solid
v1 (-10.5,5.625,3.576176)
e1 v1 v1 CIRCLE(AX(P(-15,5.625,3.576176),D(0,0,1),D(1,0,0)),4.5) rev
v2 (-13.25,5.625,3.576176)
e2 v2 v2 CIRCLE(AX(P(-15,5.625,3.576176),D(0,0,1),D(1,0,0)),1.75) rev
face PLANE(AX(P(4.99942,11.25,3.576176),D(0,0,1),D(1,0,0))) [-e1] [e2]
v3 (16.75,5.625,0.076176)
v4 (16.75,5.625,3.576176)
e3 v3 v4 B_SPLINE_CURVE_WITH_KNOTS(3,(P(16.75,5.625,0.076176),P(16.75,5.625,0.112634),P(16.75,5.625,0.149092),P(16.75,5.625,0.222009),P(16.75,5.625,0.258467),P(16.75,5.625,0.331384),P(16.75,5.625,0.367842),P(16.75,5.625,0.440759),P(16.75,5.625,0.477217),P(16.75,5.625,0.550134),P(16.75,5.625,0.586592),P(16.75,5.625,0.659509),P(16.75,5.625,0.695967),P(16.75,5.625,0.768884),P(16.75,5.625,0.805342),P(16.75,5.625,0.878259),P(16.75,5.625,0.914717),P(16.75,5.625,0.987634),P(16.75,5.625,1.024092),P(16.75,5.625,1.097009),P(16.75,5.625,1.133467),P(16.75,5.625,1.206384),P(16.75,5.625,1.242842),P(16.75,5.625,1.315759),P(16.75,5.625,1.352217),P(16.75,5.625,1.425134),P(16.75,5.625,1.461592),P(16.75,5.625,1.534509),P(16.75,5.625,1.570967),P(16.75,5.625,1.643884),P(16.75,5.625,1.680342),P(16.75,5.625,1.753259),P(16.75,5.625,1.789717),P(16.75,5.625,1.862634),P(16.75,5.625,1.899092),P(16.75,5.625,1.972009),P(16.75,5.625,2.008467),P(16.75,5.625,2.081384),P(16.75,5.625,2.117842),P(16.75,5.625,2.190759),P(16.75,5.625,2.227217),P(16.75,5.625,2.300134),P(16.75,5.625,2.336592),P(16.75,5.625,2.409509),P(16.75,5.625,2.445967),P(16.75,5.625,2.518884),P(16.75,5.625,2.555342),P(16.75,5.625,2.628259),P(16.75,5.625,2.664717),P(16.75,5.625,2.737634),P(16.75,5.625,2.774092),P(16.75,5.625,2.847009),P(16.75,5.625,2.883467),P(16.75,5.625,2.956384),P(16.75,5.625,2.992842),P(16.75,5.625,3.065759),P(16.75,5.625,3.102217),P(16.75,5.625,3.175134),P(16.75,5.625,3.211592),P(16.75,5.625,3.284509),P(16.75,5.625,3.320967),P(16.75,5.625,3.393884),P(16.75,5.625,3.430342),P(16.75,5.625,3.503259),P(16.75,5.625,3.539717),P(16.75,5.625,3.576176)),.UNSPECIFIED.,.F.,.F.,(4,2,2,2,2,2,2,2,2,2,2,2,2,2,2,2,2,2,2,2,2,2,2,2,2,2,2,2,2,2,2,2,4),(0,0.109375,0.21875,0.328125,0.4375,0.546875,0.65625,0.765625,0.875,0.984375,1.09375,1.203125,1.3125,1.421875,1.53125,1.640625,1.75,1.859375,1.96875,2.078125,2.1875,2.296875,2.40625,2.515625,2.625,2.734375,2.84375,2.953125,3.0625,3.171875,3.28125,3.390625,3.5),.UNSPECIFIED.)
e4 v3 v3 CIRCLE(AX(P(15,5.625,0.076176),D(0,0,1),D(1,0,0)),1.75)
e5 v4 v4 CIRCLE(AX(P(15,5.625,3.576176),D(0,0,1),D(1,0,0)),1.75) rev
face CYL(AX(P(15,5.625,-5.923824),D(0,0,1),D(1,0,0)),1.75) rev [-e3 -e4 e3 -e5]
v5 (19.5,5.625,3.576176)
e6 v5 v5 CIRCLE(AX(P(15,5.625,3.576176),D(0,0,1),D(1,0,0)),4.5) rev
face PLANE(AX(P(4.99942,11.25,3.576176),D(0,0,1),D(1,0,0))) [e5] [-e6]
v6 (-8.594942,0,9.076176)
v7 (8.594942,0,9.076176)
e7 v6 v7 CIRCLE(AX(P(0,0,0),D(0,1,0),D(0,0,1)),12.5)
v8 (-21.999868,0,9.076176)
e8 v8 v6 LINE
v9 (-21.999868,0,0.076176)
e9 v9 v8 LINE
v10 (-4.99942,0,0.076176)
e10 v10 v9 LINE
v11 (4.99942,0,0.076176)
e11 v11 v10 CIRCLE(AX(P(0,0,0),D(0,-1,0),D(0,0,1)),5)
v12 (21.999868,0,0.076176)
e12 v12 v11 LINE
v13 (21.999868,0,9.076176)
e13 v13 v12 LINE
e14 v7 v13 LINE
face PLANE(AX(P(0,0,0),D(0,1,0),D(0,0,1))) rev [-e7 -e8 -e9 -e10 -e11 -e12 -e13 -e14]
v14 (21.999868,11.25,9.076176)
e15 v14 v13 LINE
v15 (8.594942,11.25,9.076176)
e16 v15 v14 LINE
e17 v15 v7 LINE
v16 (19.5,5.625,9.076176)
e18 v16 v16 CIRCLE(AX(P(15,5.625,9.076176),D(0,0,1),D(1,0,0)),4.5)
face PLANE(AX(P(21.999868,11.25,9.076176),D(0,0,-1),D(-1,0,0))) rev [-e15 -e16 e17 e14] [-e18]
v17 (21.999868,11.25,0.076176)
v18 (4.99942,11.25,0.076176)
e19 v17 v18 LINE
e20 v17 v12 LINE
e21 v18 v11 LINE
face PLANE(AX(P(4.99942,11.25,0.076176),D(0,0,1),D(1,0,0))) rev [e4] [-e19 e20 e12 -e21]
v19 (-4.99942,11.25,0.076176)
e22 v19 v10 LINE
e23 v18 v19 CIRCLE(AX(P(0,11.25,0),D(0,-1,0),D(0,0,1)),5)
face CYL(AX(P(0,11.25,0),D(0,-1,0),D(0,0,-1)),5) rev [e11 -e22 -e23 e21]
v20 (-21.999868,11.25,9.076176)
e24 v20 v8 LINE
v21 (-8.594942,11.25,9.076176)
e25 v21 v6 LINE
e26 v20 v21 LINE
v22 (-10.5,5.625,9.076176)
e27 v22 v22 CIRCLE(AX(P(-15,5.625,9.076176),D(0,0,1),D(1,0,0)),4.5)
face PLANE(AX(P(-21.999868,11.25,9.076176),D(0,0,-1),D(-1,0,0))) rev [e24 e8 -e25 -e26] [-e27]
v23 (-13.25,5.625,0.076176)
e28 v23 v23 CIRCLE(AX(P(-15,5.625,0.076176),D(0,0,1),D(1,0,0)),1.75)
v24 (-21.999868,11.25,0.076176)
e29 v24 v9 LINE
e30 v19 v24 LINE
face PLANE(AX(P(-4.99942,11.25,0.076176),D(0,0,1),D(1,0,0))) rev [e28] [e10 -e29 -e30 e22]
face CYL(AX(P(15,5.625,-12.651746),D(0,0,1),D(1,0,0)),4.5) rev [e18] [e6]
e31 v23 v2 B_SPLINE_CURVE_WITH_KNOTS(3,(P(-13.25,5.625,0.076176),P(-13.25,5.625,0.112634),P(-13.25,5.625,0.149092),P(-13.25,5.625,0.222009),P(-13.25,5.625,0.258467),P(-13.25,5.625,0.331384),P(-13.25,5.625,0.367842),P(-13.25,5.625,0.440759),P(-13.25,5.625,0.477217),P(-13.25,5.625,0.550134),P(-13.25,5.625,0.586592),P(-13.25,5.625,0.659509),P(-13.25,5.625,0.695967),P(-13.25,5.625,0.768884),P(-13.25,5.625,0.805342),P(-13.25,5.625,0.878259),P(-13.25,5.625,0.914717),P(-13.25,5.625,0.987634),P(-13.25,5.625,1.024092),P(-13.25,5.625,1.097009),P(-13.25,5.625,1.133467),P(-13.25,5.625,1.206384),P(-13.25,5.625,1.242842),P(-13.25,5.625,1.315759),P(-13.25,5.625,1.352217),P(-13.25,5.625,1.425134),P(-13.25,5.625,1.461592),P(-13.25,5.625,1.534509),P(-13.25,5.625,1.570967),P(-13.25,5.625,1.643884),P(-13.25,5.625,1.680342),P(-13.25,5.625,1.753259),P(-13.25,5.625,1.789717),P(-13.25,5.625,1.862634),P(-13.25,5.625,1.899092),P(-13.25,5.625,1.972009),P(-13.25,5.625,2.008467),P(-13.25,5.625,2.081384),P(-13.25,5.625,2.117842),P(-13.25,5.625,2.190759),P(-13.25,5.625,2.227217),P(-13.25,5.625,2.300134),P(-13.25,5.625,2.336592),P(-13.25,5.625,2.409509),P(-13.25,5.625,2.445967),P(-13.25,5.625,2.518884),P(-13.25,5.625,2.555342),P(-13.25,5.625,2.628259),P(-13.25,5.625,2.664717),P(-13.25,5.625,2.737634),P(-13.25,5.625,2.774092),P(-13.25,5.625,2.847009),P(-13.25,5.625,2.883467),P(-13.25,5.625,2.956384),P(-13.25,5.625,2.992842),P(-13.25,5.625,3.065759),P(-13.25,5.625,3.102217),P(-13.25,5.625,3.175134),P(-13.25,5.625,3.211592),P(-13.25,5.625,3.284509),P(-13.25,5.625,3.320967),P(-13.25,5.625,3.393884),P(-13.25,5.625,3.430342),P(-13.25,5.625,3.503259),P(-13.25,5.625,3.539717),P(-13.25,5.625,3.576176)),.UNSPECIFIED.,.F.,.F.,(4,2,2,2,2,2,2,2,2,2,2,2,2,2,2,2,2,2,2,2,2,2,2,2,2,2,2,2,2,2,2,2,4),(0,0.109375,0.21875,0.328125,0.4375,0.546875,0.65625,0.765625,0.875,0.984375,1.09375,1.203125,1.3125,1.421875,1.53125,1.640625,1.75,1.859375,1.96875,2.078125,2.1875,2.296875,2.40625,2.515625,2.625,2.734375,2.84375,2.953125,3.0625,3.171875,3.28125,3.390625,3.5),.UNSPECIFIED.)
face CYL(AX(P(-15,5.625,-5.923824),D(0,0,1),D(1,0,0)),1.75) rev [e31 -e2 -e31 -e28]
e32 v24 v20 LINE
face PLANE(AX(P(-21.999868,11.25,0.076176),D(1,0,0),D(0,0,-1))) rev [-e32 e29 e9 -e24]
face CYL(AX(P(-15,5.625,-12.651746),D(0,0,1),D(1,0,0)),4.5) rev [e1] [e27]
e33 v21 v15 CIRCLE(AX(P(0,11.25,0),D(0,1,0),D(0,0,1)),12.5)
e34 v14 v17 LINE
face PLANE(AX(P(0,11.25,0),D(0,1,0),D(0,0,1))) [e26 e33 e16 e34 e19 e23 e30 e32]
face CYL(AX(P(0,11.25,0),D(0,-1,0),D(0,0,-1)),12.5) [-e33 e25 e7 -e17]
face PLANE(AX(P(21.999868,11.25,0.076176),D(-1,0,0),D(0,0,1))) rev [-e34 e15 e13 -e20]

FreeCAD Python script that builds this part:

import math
import FreeCAD as App
import Part
import Sketcher
Q = App.Units.Quantity

doc = App.newDocument("Part")
params = doc.addObject("Spreadsheet::Sheet", "Params")
for row, (alias, value) in enumerate([
    ("sketch1_radius", "5 mm"),
    ("sketch1_radius2", "12.5 mm"),
    ("sketch1_height", "9 mm"),
    ("pad1_length", "11.25 mm"),
    ("sketch2_diameter", "3.5 mm"),
    ("pocket1_length", "15 mm"),
    ("sketch3_diameter", "9 mm"),
    ("pocket2_length", "5.5 mm"),
], start=1):
    params.set(f"A{row}", alias)
    params.set(f"B{row}", "=" + value)
    params.setAlias(f"B{row}", alias)

body = doc.addObject("PartDesign::Body", "Body")

# Sketch on XZ plane
sketch1 = body.newObject("Sketcher::SketchObject", "Sketch")
sketch1.AttachmentSupport = (doc.getObject("XZ_Plane"), [""])
sketch1.MapMode = "FlatFace"
sketch1.addGeometry([
    Part.LineSegment(App.Vector(22, 0, 0), App.Vector(5, 0, 0)),  # 0
    Part.ArcOfCircle(Part.Circle(App.Vector(0, 0, 0), App.Vector(0, 0, 1), 5), math.radians(1), math.radians(179)),  # 1
    Part.LineSegment(App.Vector(-5, 0, 0), App.Vector(-22, 0, 0)),  # 2
    Part.LineSegment(App.Vector(-22, 0, 0), App.Vector(-22, 9, 0)),  # 3
    Part.LineSegment(App.Vector(-22, 9, 0), App.Vector(-9, 9, 0)),  # 4
    Part.ArcOfCircle(Part.Circle(App.Vector(0, 0, 0), App.Vector(0, 0, 1), 12), math.radians(47), math.radians(133)),  # 5
    Part.LineSegment(App.Vector(9, 9, 0), App.Vector(22, 9, 0)),  # 6
    Part.LineSegment(App.Vector(22, 9, 0), App.Vector(22, 0, 0)),  # 7
], False)
sketch1.addConstraint([
    Sketcher.Constraint("Coincident", 0, 2, 1, 1),
    Sketcher.Constraint("Coincident", 1, 2, 2, 1),
    Sketcher.Constraint("Coincident", 2, 2, 3, 1),
    Sketcher.Constraint("Coincident", 3, 2, 4, 1),
    Sketcher.Constraint("Coincident", 4, 2, 5, 2),
    Sketcher.Constraint("Coincident", 5, 1, 6, 1),
    Sketcher.Constraint("Coincident", 6, 2, 7, 1),
    Sketcher.Constraint("Coincident", 7, 2, 0, 1),
    Sketcher.Constraint("Horizontal", 0),
    Sketcher.Constraint("Horizontal", 2),
    Sketcher.Constraint("Vertical", 3),
    Sketcher.Constraint("Horizontal", 4),
    Sketcher.Constraint("Horizontal", 6),
    Sketcher.Constraint("Vertical", 7),
    Sketcher.Constraint("Coincident", 1, 3, -1, 1),
    Sketcher.Constraint("Coincident", 5, 3, -1, 1),
    Sketcher.Constraint("Symmetric", 3, 2, 6, 2, -2),
    Sketcher.Constraint("Horizontal", 0, 2, 1, 2),
    Sketcher.Constraint("Radius", 1, Q("5 mm")),
    Sketcher.Constraint("Radius", 5, Q("12.5 mm")),
    Sketcher.Constraint("DistanceY", 3, 1, 3, 2, Q("9 mm")),
    Sketcher.Constraint("DistanceX", 0, 2, 0, 1, Q("17.000448 mm")),
    Sketcher.Constraint("DistanceX", 4, 1, 4, 2, Q("13.404926 mm")),
])
sketch1.setExpression("Constraints[18]", "Params.sketch1_radius")
sketch1.setExpression("Constraints[19]", "Params.sketch1_radius2")
sketch1.setExpression("Constraints[20]", "Params.sketch1_height")
pad1 = body.newObject("PartDesign::Pad", "Pad")
pad1.Profile = sketch1
pad1.setExpression("Length", "Params.pad1_length")
pad1.Reversed = True

# Sketch on XY plane
sketch2 = body.newObject("Sketcher::SketchObject", "Sketch001")
sketch2.AttachmentSupport = (doc.getObject("XY_Plane"), [""])
sketch2.MapMode = "FlatFace"
sketch2.AttachmentOffset = App.Placement(App.Vector(0, 0, 9.076176), App.Rotation())
sketch2.addGeometry([
    Part.Circle(App.Vector(15, 5.6, 0), App.Vector(0, 0, 1), 1.8),
    Part.Circle(App.Vector(-15, 5.6, 0), App.Vector(0, 0, 1), 1.8),
], False)
sketch2.addConstraint([
    Sketcher.Constraint("Equal", 0, 1),
    Sketcher.Constraint("Symmetric", 0, 3, 1, 3, -2),
    Sketcher.Constraint("Diameter", 0, Q("3.5 mm")),
    Sketcher.Constraint("DistanceX", -1, 1, 0, 3, Q("15 mm")),
    Sketcher.Constraint("DistanceY", -1, 1, 0, 3, Q("5.625 mm")),
])
sketch2.setExpression("Constraints[2]", "Params.sketch2_diameter")
pocket1 = body.newObject("PartDesign::Pocket", "Pocket")
pocket1.Profile = sketch2
pocket1.setExpression("Length", "Params.pocket1_length")

# Sketch on XY plane
sketch3 = body.newObject("Sketcher::SketchObject", "Sketch002")
sketch3.AttachmentSupport = (doc.getObject("XY_Plane"), [""])
sketch3.MapMode = "FlatFace"
sketch3.AttachmentOffset = App.Placement(App.Vector(0, 0, 9.076176), App.Rotation())
sketch3.addGeometry([
    Part.Circle(App.Vector(15, 5.6, 0), App.Vector(0, 0, 1), 4.5),
    Part.Circle(App.Vector(-15, 5.6, 0), App.Vector(0, 0, 1), 4.5),
], False)
sketch3.addConstraint([
    Sketcher.Constraint("Equal", 0, 1),
    Sketcher.Constraint("Symmetric", 0, 3, 1, 3, -2),
    Sketcher.Constraint("Diameter", 0, Q("9 mm")),
    Sketcher.Constraint("DistanceX", -1, 1, 0, 3, Q("15 mm")),
    Sketcher.Constraint("DistanceY", -1, 1, 0, 3, Q("5.625 mm")),
])
sketch3.setExpression("Constraints[2]", "Params.sketch3_diameter")
pocket2 = body.newObject("PartDesign::Pocket", "Pocket001")
pocket2.Profile = sketch3
pocket2.setExpression("Length", "Params.pocket2_length")

doc.recompute()
